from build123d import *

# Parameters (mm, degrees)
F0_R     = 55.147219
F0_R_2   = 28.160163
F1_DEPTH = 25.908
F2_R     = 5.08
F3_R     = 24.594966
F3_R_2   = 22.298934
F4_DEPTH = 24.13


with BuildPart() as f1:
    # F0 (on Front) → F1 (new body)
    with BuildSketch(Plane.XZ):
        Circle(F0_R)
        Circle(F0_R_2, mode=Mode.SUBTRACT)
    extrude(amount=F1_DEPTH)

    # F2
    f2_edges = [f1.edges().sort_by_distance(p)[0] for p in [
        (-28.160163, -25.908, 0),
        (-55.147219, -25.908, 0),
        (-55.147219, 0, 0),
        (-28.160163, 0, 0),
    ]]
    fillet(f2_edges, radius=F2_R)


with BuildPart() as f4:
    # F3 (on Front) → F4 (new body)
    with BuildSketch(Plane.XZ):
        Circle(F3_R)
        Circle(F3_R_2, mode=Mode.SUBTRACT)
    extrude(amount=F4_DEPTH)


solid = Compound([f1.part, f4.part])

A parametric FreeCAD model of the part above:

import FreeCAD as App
import Part
import Sketcher
Q = App.Units.Quantity


def edges_at(feature, points):
    """Names of the edges that pass closest to the given points."""
    edges = feature.Shape.Edges
    near = lambda p: min(range(len(edges)), key=lambda i: edges[i].distToShape(Part.Vertex(*p))[0])
    return sorted({f"Edge{near(p) + 1}" for p in points})

doc = App.newDocument("Part")
body = doc.addObject("PartDesign::Body", "Body")

# Sketch on XZ plane
sketch1 = body.newObject("Sketcher::SketchObject", "Sketch")
sketch1.AttachmentSupport = (doc.getObject("XZ_Plane"), [""])
sketch1.MapMode = "FlatFace"
sketch1.addGeometry([
    Part.Circle(App.Vector(0, 0, 0), App.Vector(0, 0, 1), 55.147219),
    Part.Circle(App.Vector(0, 0, 0), App.Vector(0, 0, 1), 28.160163),
], False)
sketch1.addConstraint([
    Sketcher.Constraint("Coincident", 0, 3, -1, 1),
    Sketcher.Constraint("Coincident", 1, 3, -1, 1),
    Sketcher.Constraint("Diameter", 0, 110.294438),
    Sketcher.Constraint("Diameter", 1, 56.320326),
])
pad1 = body.newObject("PartDesign::Pad", "Pad")
pad1.Profile = sketch1
pad1.Length = Q("1.02 in")
doc.recompute()

fillet = body.newObject("PartDesign::Fillet", "Fillet")
fillet.Base = (pad1, edges_at(pad1, [
    (-28.16, -25.908, 0),
    (-55.147, -25.908, 0),
    (-55.147, 0, 0),
    (-28.16, 0, 0),
]))
fillet.Radius = Q("0.2 in")
body2 = doc.addObject("PartDesign::Body", "Body001")

# Sketch on XZ plane
sketch2 = body2.newObject("Sketcher::SketchObject", "Sketch001")
sketch2.AttachmentSupport = (doc.getObject("XZ_Plane001"), [""])
sketch2.MapMode = "FlatFace"
sketch2.addGeometry([
    Part.Circle(App.Vector(0, 0, 0), App.Vector(0, 0, 1), 24.594966),
    Part.Circle(App.Vector(0, 0, 0), App.Vector(0, 0, 1), 22.298934),
], False)
sketch2.addConstraint([
    Sketcher.Constraint("Coincident", 0, 3, -1, 1),
    Sketcher.Constraint("Coincident", 1, 3, -1, 1),
    Sketcher.Constraint("Diameter", 0, 49.189932),
    Sketcher.Constraint("Diameter", 1, 44.597868),
])
pad2 = body2.newObject("PartDesign::Pad", "Pad001")
pad2.Profile = sketch2
pad2.Length = Q("0.95 in")

doc.recompute()
